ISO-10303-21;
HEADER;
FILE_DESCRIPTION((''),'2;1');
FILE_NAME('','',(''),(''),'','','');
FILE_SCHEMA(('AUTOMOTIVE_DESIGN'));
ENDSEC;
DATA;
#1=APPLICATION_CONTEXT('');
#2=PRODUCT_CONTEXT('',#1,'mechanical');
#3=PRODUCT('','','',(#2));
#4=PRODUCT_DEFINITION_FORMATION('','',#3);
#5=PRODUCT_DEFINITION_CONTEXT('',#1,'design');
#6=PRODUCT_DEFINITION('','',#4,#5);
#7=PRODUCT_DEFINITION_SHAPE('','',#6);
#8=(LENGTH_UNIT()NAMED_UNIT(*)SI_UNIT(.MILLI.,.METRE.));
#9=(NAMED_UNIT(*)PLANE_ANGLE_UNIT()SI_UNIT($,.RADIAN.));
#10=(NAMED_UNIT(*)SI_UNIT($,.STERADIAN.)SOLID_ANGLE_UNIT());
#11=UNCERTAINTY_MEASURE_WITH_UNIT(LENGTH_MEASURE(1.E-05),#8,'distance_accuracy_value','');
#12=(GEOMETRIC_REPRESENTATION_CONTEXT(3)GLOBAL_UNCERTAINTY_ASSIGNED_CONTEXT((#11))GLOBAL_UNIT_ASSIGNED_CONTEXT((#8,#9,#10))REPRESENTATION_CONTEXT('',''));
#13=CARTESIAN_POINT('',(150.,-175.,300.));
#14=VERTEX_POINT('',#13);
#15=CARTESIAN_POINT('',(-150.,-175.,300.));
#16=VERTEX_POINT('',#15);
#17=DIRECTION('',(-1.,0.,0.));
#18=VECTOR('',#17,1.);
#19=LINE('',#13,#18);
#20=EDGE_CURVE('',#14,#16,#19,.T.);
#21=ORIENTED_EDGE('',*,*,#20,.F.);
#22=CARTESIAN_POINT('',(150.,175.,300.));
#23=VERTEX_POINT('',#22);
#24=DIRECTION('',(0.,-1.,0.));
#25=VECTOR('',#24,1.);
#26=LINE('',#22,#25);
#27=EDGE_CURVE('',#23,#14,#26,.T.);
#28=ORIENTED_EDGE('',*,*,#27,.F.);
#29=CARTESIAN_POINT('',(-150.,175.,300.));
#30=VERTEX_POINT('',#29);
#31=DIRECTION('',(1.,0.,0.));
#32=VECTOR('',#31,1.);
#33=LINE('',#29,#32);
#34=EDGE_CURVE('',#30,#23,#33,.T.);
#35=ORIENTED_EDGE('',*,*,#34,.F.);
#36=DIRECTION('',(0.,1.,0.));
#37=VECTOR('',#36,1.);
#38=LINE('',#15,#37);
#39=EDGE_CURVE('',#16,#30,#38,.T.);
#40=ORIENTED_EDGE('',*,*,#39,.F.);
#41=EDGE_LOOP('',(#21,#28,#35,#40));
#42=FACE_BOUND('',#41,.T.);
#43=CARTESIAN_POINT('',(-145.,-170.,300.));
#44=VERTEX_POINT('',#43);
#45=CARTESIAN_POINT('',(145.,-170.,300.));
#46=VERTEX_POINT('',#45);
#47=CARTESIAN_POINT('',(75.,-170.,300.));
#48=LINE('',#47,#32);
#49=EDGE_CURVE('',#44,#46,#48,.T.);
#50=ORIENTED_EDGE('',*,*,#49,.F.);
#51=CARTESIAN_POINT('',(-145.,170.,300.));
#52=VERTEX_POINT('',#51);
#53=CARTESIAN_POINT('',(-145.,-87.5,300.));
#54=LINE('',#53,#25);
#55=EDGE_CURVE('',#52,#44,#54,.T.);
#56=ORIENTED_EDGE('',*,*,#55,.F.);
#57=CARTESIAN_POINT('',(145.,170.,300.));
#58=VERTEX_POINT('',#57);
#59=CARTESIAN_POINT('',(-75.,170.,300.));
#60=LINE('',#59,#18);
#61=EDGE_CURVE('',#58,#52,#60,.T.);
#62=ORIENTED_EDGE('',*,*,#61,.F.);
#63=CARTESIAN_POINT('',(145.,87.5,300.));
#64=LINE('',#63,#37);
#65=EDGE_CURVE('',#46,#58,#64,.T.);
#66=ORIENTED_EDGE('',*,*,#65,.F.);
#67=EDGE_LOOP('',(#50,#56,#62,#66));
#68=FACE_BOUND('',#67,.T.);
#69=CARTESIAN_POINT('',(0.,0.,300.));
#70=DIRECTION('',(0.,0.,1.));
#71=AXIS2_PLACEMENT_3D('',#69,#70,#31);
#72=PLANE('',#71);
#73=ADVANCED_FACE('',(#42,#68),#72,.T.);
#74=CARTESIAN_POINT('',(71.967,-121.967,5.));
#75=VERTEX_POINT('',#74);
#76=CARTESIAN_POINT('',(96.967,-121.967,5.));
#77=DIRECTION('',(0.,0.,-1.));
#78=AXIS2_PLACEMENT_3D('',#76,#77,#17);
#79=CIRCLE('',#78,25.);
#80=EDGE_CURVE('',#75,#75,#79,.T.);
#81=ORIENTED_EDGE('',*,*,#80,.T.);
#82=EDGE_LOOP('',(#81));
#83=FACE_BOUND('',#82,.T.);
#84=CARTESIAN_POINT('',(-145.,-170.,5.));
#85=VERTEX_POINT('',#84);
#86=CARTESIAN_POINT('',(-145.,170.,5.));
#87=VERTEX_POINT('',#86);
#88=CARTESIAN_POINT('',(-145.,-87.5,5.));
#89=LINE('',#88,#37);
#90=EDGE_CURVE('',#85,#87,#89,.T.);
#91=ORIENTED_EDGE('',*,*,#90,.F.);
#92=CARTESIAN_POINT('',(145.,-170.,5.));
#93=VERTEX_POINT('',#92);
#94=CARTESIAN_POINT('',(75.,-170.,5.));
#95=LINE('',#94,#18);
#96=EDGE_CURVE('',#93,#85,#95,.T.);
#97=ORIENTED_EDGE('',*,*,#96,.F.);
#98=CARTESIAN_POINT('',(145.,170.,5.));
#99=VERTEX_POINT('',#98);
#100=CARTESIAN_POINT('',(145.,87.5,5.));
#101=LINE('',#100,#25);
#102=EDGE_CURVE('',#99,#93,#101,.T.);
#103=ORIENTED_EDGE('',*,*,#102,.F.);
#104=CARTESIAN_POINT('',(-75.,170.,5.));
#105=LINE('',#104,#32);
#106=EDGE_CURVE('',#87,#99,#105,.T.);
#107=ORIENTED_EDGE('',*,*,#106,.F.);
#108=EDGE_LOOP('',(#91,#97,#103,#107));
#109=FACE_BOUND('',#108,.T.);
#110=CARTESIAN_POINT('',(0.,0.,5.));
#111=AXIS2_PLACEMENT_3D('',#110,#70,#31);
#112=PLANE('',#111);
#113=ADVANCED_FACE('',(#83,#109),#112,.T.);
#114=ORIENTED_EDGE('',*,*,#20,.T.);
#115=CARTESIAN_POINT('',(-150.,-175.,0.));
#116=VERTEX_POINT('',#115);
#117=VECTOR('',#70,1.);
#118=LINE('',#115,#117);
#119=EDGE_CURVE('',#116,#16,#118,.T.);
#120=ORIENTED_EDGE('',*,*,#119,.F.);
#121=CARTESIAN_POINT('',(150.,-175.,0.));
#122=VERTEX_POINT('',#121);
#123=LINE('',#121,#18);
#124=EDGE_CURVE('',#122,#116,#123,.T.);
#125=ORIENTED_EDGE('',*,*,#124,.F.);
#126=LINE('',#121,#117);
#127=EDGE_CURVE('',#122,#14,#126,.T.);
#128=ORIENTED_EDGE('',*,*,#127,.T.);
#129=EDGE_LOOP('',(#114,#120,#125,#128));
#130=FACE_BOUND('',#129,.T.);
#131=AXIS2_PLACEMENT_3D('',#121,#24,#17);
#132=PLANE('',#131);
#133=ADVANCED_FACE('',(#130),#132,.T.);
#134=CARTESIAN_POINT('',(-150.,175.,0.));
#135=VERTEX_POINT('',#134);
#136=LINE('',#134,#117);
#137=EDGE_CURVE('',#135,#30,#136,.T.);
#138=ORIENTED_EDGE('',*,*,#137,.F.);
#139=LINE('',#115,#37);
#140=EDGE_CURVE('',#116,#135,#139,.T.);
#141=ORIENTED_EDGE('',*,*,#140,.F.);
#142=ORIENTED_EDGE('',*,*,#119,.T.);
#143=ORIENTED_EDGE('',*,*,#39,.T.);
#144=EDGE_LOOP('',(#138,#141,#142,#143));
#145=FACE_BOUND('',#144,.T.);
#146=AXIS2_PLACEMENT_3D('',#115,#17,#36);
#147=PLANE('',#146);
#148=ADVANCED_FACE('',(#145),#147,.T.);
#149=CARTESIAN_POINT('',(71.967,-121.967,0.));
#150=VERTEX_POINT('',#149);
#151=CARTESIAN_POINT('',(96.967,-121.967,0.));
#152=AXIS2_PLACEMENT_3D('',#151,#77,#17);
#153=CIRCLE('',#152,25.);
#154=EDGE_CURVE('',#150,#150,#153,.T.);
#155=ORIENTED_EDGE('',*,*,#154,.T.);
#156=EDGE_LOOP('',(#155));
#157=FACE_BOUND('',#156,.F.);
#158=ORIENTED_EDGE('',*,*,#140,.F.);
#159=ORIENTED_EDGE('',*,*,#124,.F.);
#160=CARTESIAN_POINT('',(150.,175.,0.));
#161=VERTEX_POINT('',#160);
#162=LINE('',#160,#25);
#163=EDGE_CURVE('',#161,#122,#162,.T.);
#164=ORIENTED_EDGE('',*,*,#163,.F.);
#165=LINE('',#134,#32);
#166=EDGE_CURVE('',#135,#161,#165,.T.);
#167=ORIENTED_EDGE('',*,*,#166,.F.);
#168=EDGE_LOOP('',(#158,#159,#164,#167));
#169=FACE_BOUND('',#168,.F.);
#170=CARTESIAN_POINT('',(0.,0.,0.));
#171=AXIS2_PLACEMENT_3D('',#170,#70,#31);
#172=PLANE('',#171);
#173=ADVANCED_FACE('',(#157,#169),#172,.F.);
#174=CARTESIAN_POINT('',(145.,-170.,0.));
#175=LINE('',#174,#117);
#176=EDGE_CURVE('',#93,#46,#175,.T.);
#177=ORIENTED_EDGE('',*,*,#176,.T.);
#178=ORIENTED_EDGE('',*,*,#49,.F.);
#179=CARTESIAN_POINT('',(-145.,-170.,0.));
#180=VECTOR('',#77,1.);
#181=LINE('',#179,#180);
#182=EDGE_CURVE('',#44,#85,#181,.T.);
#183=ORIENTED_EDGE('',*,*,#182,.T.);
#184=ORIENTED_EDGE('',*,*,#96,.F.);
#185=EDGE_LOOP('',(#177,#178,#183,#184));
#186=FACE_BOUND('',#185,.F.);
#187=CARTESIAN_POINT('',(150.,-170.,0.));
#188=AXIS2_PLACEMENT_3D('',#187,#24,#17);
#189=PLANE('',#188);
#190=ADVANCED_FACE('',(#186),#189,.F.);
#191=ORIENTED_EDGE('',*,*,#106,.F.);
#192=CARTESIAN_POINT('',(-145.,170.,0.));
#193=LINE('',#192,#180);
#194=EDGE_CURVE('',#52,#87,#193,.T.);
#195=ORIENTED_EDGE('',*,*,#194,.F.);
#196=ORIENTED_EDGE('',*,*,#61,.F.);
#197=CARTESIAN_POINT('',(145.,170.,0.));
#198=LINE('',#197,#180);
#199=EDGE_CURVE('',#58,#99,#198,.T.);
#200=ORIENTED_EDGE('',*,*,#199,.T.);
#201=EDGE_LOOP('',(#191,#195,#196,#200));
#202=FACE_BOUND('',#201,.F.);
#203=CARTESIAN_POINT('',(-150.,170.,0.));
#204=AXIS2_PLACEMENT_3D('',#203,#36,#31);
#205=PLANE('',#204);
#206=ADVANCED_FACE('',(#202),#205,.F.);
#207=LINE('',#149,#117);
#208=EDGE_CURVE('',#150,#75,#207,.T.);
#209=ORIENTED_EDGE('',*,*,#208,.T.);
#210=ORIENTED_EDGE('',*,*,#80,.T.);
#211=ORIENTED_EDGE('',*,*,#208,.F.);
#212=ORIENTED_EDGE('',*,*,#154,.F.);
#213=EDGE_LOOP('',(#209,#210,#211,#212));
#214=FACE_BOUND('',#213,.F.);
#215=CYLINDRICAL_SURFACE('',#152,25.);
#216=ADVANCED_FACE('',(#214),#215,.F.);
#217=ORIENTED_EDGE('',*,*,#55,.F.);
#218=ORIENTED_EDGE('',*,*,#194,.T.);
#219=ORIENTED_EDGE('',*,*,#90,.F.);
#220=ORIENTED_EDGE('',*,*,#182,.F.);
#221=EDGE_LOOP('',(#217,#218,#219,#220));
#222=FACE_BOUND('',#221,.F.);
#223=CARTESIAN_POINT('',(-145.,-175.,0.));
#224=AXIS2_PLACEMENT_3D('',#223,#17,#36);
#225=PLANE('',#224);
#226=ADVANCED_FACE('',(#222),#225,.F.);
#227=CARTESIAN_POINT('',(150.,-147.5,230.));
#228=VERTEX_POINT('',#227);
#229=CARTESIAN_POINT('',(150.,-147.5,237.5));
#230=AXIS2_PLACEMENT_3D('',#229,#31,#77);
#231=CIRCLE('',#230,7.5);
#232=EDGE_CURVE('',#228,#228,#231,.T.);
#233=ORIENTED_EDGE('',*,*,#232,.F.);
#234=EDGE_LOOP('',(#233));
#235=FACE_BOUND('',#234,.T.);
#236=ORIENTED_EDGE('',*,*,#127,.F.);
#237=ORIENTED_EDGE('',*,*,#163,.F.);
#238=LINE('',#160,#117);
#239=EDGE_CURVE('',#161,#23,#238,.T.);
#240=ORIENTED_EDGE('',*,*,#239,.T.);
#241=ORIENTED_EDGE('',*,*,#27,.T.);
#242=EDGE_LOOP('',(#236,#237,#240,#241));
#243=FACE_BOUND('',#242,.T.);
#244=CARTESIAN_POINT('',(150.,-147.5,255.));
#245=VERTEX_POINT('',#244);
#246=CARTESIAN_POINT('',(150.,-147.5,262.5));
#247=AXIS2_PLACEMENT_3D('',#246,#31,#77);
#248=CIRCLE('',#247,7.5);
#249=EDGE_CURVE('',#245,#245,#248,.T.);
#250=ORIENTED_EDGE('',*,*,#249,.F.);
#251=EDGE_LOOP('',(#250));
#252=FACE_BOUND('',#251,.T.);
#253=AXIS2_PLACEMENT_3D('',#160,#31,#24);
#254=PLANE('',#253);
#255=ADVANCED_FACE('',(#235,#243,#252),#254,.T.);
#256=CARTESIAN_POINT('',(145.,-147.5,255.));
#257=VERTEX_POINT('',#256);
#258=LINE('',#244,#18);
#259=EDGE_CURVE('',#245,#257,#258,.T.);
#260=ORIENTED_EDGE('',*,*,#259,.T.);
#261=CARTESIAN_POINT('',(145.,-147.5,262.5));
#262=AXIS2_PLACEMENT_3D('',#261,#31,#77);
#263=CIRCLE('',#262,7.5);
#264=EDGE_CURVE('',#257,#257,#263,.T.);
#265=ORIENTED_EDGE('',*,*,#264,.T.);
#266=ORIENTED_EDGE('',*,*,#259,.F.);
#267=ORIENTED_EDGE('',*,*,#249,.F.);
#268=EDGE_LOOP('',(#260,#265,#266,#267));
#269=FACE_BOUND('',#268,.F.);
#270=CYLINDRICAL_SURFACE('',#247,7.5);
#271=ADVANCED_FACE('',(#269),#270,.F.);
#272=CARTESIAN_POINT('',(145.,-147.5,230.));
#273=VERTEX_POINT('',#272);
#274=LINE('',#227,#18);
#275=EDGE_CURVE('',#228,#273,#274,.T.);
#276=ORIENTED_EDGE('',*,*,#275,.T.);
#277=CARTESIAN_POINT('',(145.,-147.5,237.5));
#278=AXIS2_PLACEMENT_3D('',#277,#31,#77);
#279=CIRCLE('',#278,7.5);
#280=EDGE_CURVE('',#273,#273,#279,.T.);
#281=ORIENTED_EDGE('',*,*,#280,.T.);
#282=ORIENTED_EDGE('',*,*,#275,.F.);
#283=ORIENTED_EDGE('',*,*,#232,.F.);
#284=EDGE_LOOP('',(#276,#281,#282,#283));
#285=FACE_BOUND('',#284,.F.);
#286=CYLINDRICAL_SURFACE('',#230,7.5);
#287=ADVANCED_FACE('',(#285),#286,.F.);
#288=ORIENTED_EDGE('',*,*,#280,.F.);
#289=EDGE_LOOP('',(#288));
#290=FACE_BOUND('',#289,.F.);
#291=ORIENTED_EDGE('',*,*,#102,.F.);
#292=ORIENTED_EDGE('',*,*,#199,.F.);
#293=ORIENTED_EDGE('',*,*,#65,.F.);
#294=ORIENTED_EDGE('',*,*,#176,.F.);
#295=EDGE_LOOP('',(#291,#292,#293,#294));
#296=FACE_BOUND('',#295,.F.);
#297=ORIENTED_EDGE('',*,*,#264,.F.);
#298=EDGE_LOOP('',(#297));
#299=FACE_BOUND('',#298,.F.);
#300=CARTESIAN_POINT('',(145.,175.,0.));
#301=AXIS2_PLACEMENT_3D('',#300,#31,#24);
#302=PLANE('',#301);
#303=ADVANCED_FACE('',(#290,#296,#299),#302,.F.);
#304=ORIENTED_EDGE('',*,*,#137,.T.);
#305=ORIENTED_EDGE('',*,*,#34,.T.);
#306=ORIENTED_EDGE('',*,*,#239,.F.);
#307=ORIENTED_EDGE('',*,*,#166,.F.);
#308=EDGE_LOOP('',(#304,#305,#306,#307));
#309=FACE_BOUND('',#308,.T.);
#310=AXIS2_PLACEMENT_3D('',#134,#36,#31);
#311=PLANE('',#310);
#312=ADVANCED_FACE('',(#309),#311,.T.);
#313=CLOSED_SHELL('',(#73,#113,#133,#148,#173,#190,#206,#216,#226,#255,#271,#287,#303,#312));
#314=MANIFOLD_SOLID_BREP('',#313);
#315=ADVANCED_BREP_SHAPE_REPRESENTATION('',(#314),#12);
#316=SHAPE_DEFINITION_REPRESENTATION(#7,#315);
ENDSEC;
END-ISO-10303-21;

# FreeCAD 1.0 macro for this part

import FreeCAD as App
import Part
import Sketcher


def faces_at(feature, points):
    """Names of the faces that lie closest to the given points."""
    faces = feature.Shape.Faces
    near = lambda p: min(range(len(faces)), key=lambda i: faces[i].distToShape(Part.Vertex(*p))[0])
    return sorted({f"Face{near(p) + 1}" for p in points})


def add_polygon(sketch, points):
    """Adds a closed chain of lines whose ends are joined by coincident constraints."""
    first, n = sketch.GeometryCount, len(points)
    for a, b in zip(points, points[1:] + points[:1]):
        sketch.addGeometry(Part.LineSegment(App.Vector(*a, 0), App.Vector(*b, 0)), False)
    for i in range(n):
        sketch.addConstraint(Sketcher.Constraint("Coincident", first + i, 2, first + (i + 1) % n, 1))

doc = App.newDocument("Part")
body = doc.addObject("PartDesign::Body", "Body")

# Sketch on XY plane
sketch1 = body.newObject("Sketcher::SketchObject", "Sketch")
sketch1.AttachmentSupport = (doc.getObject("XY_Plane"), [""])
sketch1.MapMode = "FlatFace"
add_polygon(sketch1, [(-150, -175), (150, -175), (150, 175), (-150, 175)])  # lines 0-3
sketch1.addConstraint(Sketcher.Constraint("Horizontal", 0))
sketch1.addConstraint(Sketcher.Constraint("Vertical", 1))
sketch1.addConstraint(Sketcher.Constraint("Horizontal", 2))
sketch1.addConstraint(Sketcher.Constraint("Vertical", 3))
sketch1.addConstraint(Sketcher.Constraint("Symmetric", 0, 2, 2, 2, -1, 1))
sketch1.addConstraint(Sketcher.Constraint("DistanceX", 0, 1, 0, 2, 300.0))
sketch1.addConstraint(Sketcher.Constraint("DistanceY", 1, 1, 1, 2, 350.0))
pad1 = body.newObject("PartDesign::Pad", "Pad")
pad1.Profile = sketch1
pad1.Length = 300
doc.recompute()

thickness = body.newObject("PartDesign::Thickness", "Thickness")
thickness.Base = (pad1, faces_at(pad1, [(50, -58.333, 300)]))
thickness.Value = 5
thickness.Reversed = True
thickness.Join = "Intersection"

# Sketch on YZ plane
sketch2 = body.newObject("Sketcher::SketchObject", "Sketch001")
sketch2.AttachmentSupport = (doc.getObject("YZ_Plane"), [""])
sketch2.MapMode = "FlatFace"
sketch2.AttachmentOffset = App.Placement(App.Vector(0, 0, 150), App.Rotation())
sketch2.addGeometry(Part.Circle(App.Vector(-147.5, 262.5, 0), App.Vector(0, 0, 1), 7.5), False)
sketch2.addGeometry(Part.Circle(App.Vector(-147.5, 237.5, 0), App.Vector(0, 0, 1), 7.5), False)
sketch2.addConstraint(Sketcher.Constraint("Equal", 0, 1))
sketch2.addConstraint(Sketcher.Constraint("Vertical", 0, 3, 1, 3))
sketch2.addConstraint(Sketcher.Constraint("Diameter", 0, 15.0))
sketch2.addConstraint(Sketcher.Constraint("DistanceY", 1, 3, 0, 3, 25.0))
sketch2.addConstraint(Sketcher.Constraint("DistanceX", 0, 3, -1, 1, 147.5))
sketch2.addConstraint(Sketcher.Constraint("DistanceY", -1, 1, 0, 3, 262.5))
pocket1 = body.newObject("PartDesign::Pocket", "Pocket")
pocket1.Profile = sketch2
pocket1.Length = 5

# Sketch on XY plane
sketch3 = body.newObject("Sketcher::SketchObject", "Sketch002")
sketch3.AttachmentSupport = (doc.getObject("XY_Plane"), [""])
sketch3.MapMode = "FlatFace"
sketch3.addGeometry(Part.Circle(App.Vector(96.967, -121.967, 0), App.Vector(0, 0, 1), 25), False)
sketch3.addConstraint(Sketcher.Constraint("Diameter", 0, 50.0))
sketch3.addConstraint(Sketcher.Constraint("DistanceX", -1, 1, 0, 3, 96.967))
sketch3.addConstraint(Sketcher.Constraint("DistanceY", 0, 3, -1, 1, 121.967))
pocket2 = body.newObject("PartDesign::Pocket", "Pocket001")
pocket2.Profile = sketch3
pocket2.Length = 5
pocket2.Reversed = True

doc.recompute()
